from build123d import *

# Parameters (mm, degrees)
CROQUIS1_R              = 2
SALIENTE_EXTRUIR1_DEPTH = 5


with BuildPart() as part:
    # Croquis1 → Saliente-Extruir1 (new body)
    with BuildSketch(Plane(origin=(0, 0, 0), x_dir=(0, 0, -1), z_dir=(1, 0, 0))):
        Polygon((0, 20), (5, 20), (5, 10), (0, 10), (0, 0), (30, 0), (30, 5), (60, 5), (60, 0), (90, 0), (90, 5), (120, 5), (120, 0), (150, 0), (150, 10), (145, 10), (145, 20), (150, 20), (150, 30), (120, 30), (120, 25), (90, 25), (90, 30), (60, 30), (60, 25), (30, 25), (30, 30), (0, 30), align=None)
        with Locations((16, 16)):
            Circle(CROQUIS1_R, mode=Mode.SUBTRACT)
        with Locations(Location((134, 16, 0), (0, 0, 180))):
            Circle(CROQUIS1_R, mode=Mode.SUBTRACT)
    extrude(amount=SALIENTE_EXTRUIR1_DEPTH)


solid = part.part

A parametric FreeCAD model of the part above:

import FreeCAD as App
import Part
import Sketcher
from FreeCAD import Vector

doc = App.newDocument("Part")
params = doc.addObject("Spreadsheet::Sheet", "Params")
for row, (alias, value) in enumerate([
    ("sketch1_diameter", "4 mm"),
    ("sketch1_width", "10 mm"),
    ("sketch1_width2", "5 mm"),
    ("sketch1_height", "30 mm"),
    ("pad1_length", "5 mm"),
], start=1):
    params.set(f"A{row}", alias)
    params.set(f"B{row}", "=" + value)
    params.setAlias(f"B{row}", alias)

body = doc.addObject("PartDesign::Body", "Body")

# Sketch on YZ plane
sketch1 = body.newObject("Sketcher::SketchObject", "Sketch")
sketch1.AttachmentSupport = (doc.getObject("YZ_Plane"), [""])
sketch1.MapMode = "FlatFace"
sketch1.addGeometry(Part.LineSegment(Vector(20, 0, 0), Vector(20, -5, 0)), False)
sketch1.addGeometry(Part.LineSegment(Vector(20, -5, 0), Vector(10, -5, 0)), False)
sketch1.addGeometry(Part.LineSegment(Vector(10, -5, 0), Vector(10, 0, 0)), False)
sketch1.addGeometry(Part.LineSegment(Vector(10, 0, 0), Vector(0, 0, 0)), False)
sketch1.addGeometry(Part.LineSegment(Vector(0, 0, 0), Vector(0, -30, 0)), False)
sketch1.addGeometry(Part.LineSegment(Vector(0, -30, 0), Vector(5, -30, 0)), False)
sketch1.addGeometry(Part.LineSegment(Vector(5, -30, 0), Vector(5, -60, 0)), False)
sketch1.addGeometry(Part.LineSegment(Vector(5, -60, 0), Vector(0, -60, 0)), False)
sketch1.addGeometry(Part.LineSegment(Vector(0, -60, 0), Vector(0, -90, 0)), False)
sketch1.addGeometry(Part.LineSegment(Vector(0, -90, 0), Vector(5, -90, 0)), False)
sketch1.addGeometry(Part.LineSegment(Vector(5, -90, 0), Vector(5, -120, 0)), False)
sketch1.addGeometry(Part.LineSegment(Vector(5, -120, 0), Vector(0, -120, 0)), False)
sketch1.addGeometry(Part.LineSegment(Vector(0, -120, 0), Vector(0, -150, 0)), False)
sketch1.addGeometry(Part.LineSegment(Vector(0, -150, 0), Vector(10, -150, 0)), False)
sketch1.addGeometry(Part.LineSegment(Vector(10, -150, 0), Vector(10, -145, 0)), False)
sketch1.addGeometry(Part.LineSegment(Vector(10, -145, 0), Vector(20, -145, 0)), False)
sketch1.addGeometry(Part.LineSegment(Vector(20, -145, 0), Vector(20, -150, 0)), False)
sketch1.addGeometry(Part.LineSegment(Vector(20, -150, 0), Vector(30, -150, 0)), False)
sketch1.addGeometry(Part.LineSegment(Vector(30, -150, 0), Vector(30, -120, 0)), False)
sketch1.addGeometry(Part.LineSegment(Vector(30, -120, 0), Vector(25, -120, 0)), False)
sketch1.addGeometry(Part.LineSegment(Vector(25, -120, 0), Vector(25, -90, 0)), False)
sketch1.addGeometry(Part.LineSegment(Vector(25, -90, 0), Vector(30, -90, 0)), False)
sketch1.addGeometry(Part.LineSegment(Vector(30, -90, 0), Vector(30, -60, 0)), False)
sketch1.addGeometry(Part.LineSegment(Vector(30, -60, 0), Vector(25, -60, 0)), False)
sketch1.addGeometry(Part.LineSegment(Vector(25, -60, 0), Vector(25, -30, 0)), False)
sketch1.addGeometry(Part.LineSegment(Vector(25, -30, 0), Vector(30, -30, 0)), False)
sketch1.addGeometry(Part.LineSegment(Vector(30, -30, 0), Vector(30, 0, 0)), False)
sketch1.addGeometry(Part.LineSegment(Vector(30, 0, 0), Vector(20, 0, 0)), False)
sketch1.addGeometry(Part.Circle(Vector(16, -16, 0), Vector(0, 0, 1), 2), False)
sketch1.addGeometry(Part.Circle(Vector(16, -134, 0), Vector(0, 0, 1), 2), False)
sketch1.addConstraint(Sketcher.Constraint("Coincident", 0, 2, 1, 1))
sketch1.addConstraint(Sketcher.Constraint("Coincident", 1, 2, 2, 1))
sketch1.addConstraint(Sketcher.Constraint("Coincident", 2, 2, 3, 1))
sketch1.addConstraint(Sketcher.Constraint("Coincident", 3, 2, 4, 1))
sketch1.addConstraint(Sketcher.Constraint("Coincident", 4, 2, 5, 1))
sketch1.addConstraint(Sketcher.Constraint("Coincident", 5, 2, 6, 1))
sketch1.addConstraint(Sketcher.Constraint("Coincident", 6, 2, 7, 1))
sketch1.addConstraint(Sketcher.Constraint("Coincident", 7, 2, 8, 1))
sketch1.addConstraint(Sketcher.Constraint("Coincident", 8, 2, 9, 1))
sketch1.addConstraint(Sketcher.Constraint("Coincident", 9, 2, 10, 1))
sketch1.addConstraint(Sketcher.Constraint("Coincident", 10, 2, 11, 1))
sketch1.addConstraint(Sketcher.Constraint("Coincident", 11, 2, 12, 1))
sketch1.addConstraint(Sketcher.Constraint("Coincident", 12, 2, 13, 1))
sketch1.addConstraint(Sketcher.Constraint("Coincident", 13, 2, 14, 1))
sketch1.addConstraint(Sketcher.Constraint("Coincident", 14, 2, 15, 1))
sketch1.addConstraint(Sketcher.Constraint("Coincident", 15, 2, 16, 1))
sketch1.addConstraint(Sketcher.Constraint("Coincident", 16, 2, 17, 1))
sketch1.addConstraint(Sketcher.Constraint("Coincident", 17, 2, 18, 1))
sketch1.addConstraint(Sketcher.Constraint("Coincident", 18, 2, 19, 1))
sketch1.addConstraint(Sketcher.Constraint("Coincident", 19, 2, 20, 1))
sketch1.addConstraint(Sketcher.Constraint("Coincident", 20, 2, 21, 1))
sketch1.addConstraint(Sketcher.Constraint("Coincident", 21, 2, 22, 1))
sketch1.addConstraint(Sketcher.Constraint("Coincident", 22, 2, 23, 1))
sketch1.addConstraint(Sketcher.Constraint("Coincident", 23, 2, 24, 1))
sketch1.addConstraint(Sketcher.Constraint("Coincident", 24, 2, 25, 1))
sketch1.addConstraint(Sketcher.Constraint("Coincident", 25, 2, 26, 1))
sketch1.addConstraint(Sketcher.Constraint("Coincident", 26, 2, 27, 1))
sketch1.addConstraint(Sketcher.Constraint("Coincident", 27, 2, 0, 1))
sketch1.addConstraint(Sketcher.Constraint("Vertical", 0))
sketch1.addConstraint(Sketcher.Constraint("Horizontal", 1))
sketch1.addConstraint(Sketcher.Constraint("Vertical", 2))
sketch1.addConstraint(Sketcher.Constraint("Horizontal", 3))
sketch1.addConstraint(Sketcher.Constraint("Vertical", 4))
sketch1.addConstraint(Sketcher.Constraint("Horizontal", 5))
sketch1.addConstraint(Sketcher.Constraint("Vertical", 6))
sketch1.addConstraint(Sketcher.Constraint("Horizontal", 7))
sketch1.addConstraint(Sketcher.Constraint("Vertical", 8))
sketch1.addConstraint(Sketcher.Constraint("Horizontal", 9))
sketch1.addConstraint(Sketcher.Constraint("Vertical", 10))
sketch1.addConstraint(Sketcher.Constraint("Horizontal", 11))
sketch1.addConstraint(Sketcher.Constraint("Vertical", 12))
sketch1.addConstraint(Sketcher.Constraint("Horizontal", 13))
sketch1.addConstraint(Sketcher.Constraint("Vertical", 14))
sketch1.addConstraint(Sketcher.Constraint("Horizontal", 15))
sketch1.addConstraint(Sketcher.Constraint("Vertical", 16))
sketch1.addConstraint(Sketcher.Constraint("Horizontal", 17))
sketch1.addConstraint(Sketcher.Constraint("Vertical", 18))
sketch1.addConstraint(Sketcher.Constraint("Horizontal", 19))
sketch1.addConstraint(Sketcher.Constraint("Vertical", 20))
sketch1.addConstraint(Sketcher.Constraint("Horizontal", 21))
sketch1.addConstraint(Sketcher.Constraint("Vertical", 22))
sketch1.addConstraint(Sketcher.Constraint("Horizontal", 23))
sketch1.addConstraint(Sketcher.Constraint("Vertical", 24))
sketch1.addConstraint(Sketcher.Constraint("Horizontal", 25))
sketch1.addConstraint(Sketcher.Constraint("Vertical", 26))
sketch1.addConstraint(Sketcher.Constraint("Horizontal", 27))
sketch1.addConstraint(Sketcher.Constraint("Coincident", 3, 2, -1, 1))
sketch1.addConstraint(Sketcher.Constraint("Equal", 28, 29))
sketch1.addConstraint(Sketcher.Constraint("PointOnObject", 7, 2, -2))
sketch1.addConstraint(Sketcher.Constraint("PointOnObject", 11, 2, -2))
sketch1.addConstraint(Sketcher.Constraint("PointOnObject", 26, 2, -1))
sketch1.addConstraint(Sketcher.Constraint("Horizontal", 13, 2, 16, 2))
sketch1.addConstraint(Sketcher.Constraint("Horizontal", 11, 2, 18, 2))
sketch1.addConstraint(Sketcher.Constraint("Horizontal", 9, 2, 20, 2))
sketch1.addConstraint(Sketcher.Constraint("Horizontal", 7, 2, 22, 2))
sketch1.addConstraint(Sketcher.Constraint("Horizontal", 5, 2, 24, 2))
sketch1.addConstraint(Sketcher.Constraint("Vertical", 28, 3, 29, 3))
sketch1.addConstraint(Sketcher.Constraint("Vertical", 6, 2, 9, 2))
sketch1.addConstraint(Sketcher.Constraint("Vertical", 2, 2, 13, 2))
sketch1.addConstraint(Sketcher.Constraint("Vertical", 0, 2, 15, 2))
sketch1.addConstraint(Sketcher.Constraint("Vertical", 18, 2, 21, 2))
sketch1.addConstraint(Sketcher.Constraint("Vertical", 20, 2, 23, 2))
sketch1.addConstraint(Sketcher.Constraint("Vertical", 22, 2, 25, 2))
sketch1.addConstraint(Sketcher.Constraint("Equal", 1, 3))
sketch1.addConstraint(Sketcher.Constraint("Equal", 15, 17))
sketch1.addConstraint(Sketcher.Constraint("Equal", 11, 19))
sketch1.addConstraint(Sketcher.Constraint("Equal", 25, 0))
sketch1.addConstraint(Sketcher.Constraint("Equal", 4, 6))
sketch1.addConstraint(Sketcher.Constraint("Equal", 6, 8))
sketch1.addConstraint(Sketcher.Constraint("Equal", 8, 10))
sketch1.addConstraint(Sketcher.Constraint("Equal", 10, 12))
sketch1.addConstraint(Sketcher.Constraint("Equal", 2, 14))
sketch1.addConstraint(Sketcher.Constraint("Diameter", 28, 4.0))
sketch1.addConstraint(Sketcher.Constraint("DistanceX", 1, 2, 1, 1, 10.0))
sketch1.addConstraint(Sketcher.Constraint("DistanceX", 5, 1, 5, 2, 5.0))
sketch1.addConstraint(Sketcher.Constraint("DistanceY", 4, 2, 4, 1, 30.0))
sketch1.addConstraint(Sketcher.Constraint("DistanceX", -1, 1, 28, 3, 16.0))
sketch1.addConstraint(Sketcher.Constraint("DistanceY", 28, 3, -1, 1, 16.0))
sketch1.addConstraint(Sketcher.Constraint("DistanceY", 29, 3, -1, 1, 134.0))
sketch1.setExpression("Constraints[82]", "Params.sketch1_diameter")
sketch1.setExpression("Constraints[83]", "Params.sketch1_width")
sketch1.setExpression("Constraints[84]", "Params.sketch1_width2")
sketch1.setExpression("Constraints[85]", "Params.sketch1_height")
pad1 = body.newObject("PartDesign::Pad", "Pad")
pad1.Profile = sketch1
pad1.setExpression("Length", "Params.pad1_length")

doc.recompute()
